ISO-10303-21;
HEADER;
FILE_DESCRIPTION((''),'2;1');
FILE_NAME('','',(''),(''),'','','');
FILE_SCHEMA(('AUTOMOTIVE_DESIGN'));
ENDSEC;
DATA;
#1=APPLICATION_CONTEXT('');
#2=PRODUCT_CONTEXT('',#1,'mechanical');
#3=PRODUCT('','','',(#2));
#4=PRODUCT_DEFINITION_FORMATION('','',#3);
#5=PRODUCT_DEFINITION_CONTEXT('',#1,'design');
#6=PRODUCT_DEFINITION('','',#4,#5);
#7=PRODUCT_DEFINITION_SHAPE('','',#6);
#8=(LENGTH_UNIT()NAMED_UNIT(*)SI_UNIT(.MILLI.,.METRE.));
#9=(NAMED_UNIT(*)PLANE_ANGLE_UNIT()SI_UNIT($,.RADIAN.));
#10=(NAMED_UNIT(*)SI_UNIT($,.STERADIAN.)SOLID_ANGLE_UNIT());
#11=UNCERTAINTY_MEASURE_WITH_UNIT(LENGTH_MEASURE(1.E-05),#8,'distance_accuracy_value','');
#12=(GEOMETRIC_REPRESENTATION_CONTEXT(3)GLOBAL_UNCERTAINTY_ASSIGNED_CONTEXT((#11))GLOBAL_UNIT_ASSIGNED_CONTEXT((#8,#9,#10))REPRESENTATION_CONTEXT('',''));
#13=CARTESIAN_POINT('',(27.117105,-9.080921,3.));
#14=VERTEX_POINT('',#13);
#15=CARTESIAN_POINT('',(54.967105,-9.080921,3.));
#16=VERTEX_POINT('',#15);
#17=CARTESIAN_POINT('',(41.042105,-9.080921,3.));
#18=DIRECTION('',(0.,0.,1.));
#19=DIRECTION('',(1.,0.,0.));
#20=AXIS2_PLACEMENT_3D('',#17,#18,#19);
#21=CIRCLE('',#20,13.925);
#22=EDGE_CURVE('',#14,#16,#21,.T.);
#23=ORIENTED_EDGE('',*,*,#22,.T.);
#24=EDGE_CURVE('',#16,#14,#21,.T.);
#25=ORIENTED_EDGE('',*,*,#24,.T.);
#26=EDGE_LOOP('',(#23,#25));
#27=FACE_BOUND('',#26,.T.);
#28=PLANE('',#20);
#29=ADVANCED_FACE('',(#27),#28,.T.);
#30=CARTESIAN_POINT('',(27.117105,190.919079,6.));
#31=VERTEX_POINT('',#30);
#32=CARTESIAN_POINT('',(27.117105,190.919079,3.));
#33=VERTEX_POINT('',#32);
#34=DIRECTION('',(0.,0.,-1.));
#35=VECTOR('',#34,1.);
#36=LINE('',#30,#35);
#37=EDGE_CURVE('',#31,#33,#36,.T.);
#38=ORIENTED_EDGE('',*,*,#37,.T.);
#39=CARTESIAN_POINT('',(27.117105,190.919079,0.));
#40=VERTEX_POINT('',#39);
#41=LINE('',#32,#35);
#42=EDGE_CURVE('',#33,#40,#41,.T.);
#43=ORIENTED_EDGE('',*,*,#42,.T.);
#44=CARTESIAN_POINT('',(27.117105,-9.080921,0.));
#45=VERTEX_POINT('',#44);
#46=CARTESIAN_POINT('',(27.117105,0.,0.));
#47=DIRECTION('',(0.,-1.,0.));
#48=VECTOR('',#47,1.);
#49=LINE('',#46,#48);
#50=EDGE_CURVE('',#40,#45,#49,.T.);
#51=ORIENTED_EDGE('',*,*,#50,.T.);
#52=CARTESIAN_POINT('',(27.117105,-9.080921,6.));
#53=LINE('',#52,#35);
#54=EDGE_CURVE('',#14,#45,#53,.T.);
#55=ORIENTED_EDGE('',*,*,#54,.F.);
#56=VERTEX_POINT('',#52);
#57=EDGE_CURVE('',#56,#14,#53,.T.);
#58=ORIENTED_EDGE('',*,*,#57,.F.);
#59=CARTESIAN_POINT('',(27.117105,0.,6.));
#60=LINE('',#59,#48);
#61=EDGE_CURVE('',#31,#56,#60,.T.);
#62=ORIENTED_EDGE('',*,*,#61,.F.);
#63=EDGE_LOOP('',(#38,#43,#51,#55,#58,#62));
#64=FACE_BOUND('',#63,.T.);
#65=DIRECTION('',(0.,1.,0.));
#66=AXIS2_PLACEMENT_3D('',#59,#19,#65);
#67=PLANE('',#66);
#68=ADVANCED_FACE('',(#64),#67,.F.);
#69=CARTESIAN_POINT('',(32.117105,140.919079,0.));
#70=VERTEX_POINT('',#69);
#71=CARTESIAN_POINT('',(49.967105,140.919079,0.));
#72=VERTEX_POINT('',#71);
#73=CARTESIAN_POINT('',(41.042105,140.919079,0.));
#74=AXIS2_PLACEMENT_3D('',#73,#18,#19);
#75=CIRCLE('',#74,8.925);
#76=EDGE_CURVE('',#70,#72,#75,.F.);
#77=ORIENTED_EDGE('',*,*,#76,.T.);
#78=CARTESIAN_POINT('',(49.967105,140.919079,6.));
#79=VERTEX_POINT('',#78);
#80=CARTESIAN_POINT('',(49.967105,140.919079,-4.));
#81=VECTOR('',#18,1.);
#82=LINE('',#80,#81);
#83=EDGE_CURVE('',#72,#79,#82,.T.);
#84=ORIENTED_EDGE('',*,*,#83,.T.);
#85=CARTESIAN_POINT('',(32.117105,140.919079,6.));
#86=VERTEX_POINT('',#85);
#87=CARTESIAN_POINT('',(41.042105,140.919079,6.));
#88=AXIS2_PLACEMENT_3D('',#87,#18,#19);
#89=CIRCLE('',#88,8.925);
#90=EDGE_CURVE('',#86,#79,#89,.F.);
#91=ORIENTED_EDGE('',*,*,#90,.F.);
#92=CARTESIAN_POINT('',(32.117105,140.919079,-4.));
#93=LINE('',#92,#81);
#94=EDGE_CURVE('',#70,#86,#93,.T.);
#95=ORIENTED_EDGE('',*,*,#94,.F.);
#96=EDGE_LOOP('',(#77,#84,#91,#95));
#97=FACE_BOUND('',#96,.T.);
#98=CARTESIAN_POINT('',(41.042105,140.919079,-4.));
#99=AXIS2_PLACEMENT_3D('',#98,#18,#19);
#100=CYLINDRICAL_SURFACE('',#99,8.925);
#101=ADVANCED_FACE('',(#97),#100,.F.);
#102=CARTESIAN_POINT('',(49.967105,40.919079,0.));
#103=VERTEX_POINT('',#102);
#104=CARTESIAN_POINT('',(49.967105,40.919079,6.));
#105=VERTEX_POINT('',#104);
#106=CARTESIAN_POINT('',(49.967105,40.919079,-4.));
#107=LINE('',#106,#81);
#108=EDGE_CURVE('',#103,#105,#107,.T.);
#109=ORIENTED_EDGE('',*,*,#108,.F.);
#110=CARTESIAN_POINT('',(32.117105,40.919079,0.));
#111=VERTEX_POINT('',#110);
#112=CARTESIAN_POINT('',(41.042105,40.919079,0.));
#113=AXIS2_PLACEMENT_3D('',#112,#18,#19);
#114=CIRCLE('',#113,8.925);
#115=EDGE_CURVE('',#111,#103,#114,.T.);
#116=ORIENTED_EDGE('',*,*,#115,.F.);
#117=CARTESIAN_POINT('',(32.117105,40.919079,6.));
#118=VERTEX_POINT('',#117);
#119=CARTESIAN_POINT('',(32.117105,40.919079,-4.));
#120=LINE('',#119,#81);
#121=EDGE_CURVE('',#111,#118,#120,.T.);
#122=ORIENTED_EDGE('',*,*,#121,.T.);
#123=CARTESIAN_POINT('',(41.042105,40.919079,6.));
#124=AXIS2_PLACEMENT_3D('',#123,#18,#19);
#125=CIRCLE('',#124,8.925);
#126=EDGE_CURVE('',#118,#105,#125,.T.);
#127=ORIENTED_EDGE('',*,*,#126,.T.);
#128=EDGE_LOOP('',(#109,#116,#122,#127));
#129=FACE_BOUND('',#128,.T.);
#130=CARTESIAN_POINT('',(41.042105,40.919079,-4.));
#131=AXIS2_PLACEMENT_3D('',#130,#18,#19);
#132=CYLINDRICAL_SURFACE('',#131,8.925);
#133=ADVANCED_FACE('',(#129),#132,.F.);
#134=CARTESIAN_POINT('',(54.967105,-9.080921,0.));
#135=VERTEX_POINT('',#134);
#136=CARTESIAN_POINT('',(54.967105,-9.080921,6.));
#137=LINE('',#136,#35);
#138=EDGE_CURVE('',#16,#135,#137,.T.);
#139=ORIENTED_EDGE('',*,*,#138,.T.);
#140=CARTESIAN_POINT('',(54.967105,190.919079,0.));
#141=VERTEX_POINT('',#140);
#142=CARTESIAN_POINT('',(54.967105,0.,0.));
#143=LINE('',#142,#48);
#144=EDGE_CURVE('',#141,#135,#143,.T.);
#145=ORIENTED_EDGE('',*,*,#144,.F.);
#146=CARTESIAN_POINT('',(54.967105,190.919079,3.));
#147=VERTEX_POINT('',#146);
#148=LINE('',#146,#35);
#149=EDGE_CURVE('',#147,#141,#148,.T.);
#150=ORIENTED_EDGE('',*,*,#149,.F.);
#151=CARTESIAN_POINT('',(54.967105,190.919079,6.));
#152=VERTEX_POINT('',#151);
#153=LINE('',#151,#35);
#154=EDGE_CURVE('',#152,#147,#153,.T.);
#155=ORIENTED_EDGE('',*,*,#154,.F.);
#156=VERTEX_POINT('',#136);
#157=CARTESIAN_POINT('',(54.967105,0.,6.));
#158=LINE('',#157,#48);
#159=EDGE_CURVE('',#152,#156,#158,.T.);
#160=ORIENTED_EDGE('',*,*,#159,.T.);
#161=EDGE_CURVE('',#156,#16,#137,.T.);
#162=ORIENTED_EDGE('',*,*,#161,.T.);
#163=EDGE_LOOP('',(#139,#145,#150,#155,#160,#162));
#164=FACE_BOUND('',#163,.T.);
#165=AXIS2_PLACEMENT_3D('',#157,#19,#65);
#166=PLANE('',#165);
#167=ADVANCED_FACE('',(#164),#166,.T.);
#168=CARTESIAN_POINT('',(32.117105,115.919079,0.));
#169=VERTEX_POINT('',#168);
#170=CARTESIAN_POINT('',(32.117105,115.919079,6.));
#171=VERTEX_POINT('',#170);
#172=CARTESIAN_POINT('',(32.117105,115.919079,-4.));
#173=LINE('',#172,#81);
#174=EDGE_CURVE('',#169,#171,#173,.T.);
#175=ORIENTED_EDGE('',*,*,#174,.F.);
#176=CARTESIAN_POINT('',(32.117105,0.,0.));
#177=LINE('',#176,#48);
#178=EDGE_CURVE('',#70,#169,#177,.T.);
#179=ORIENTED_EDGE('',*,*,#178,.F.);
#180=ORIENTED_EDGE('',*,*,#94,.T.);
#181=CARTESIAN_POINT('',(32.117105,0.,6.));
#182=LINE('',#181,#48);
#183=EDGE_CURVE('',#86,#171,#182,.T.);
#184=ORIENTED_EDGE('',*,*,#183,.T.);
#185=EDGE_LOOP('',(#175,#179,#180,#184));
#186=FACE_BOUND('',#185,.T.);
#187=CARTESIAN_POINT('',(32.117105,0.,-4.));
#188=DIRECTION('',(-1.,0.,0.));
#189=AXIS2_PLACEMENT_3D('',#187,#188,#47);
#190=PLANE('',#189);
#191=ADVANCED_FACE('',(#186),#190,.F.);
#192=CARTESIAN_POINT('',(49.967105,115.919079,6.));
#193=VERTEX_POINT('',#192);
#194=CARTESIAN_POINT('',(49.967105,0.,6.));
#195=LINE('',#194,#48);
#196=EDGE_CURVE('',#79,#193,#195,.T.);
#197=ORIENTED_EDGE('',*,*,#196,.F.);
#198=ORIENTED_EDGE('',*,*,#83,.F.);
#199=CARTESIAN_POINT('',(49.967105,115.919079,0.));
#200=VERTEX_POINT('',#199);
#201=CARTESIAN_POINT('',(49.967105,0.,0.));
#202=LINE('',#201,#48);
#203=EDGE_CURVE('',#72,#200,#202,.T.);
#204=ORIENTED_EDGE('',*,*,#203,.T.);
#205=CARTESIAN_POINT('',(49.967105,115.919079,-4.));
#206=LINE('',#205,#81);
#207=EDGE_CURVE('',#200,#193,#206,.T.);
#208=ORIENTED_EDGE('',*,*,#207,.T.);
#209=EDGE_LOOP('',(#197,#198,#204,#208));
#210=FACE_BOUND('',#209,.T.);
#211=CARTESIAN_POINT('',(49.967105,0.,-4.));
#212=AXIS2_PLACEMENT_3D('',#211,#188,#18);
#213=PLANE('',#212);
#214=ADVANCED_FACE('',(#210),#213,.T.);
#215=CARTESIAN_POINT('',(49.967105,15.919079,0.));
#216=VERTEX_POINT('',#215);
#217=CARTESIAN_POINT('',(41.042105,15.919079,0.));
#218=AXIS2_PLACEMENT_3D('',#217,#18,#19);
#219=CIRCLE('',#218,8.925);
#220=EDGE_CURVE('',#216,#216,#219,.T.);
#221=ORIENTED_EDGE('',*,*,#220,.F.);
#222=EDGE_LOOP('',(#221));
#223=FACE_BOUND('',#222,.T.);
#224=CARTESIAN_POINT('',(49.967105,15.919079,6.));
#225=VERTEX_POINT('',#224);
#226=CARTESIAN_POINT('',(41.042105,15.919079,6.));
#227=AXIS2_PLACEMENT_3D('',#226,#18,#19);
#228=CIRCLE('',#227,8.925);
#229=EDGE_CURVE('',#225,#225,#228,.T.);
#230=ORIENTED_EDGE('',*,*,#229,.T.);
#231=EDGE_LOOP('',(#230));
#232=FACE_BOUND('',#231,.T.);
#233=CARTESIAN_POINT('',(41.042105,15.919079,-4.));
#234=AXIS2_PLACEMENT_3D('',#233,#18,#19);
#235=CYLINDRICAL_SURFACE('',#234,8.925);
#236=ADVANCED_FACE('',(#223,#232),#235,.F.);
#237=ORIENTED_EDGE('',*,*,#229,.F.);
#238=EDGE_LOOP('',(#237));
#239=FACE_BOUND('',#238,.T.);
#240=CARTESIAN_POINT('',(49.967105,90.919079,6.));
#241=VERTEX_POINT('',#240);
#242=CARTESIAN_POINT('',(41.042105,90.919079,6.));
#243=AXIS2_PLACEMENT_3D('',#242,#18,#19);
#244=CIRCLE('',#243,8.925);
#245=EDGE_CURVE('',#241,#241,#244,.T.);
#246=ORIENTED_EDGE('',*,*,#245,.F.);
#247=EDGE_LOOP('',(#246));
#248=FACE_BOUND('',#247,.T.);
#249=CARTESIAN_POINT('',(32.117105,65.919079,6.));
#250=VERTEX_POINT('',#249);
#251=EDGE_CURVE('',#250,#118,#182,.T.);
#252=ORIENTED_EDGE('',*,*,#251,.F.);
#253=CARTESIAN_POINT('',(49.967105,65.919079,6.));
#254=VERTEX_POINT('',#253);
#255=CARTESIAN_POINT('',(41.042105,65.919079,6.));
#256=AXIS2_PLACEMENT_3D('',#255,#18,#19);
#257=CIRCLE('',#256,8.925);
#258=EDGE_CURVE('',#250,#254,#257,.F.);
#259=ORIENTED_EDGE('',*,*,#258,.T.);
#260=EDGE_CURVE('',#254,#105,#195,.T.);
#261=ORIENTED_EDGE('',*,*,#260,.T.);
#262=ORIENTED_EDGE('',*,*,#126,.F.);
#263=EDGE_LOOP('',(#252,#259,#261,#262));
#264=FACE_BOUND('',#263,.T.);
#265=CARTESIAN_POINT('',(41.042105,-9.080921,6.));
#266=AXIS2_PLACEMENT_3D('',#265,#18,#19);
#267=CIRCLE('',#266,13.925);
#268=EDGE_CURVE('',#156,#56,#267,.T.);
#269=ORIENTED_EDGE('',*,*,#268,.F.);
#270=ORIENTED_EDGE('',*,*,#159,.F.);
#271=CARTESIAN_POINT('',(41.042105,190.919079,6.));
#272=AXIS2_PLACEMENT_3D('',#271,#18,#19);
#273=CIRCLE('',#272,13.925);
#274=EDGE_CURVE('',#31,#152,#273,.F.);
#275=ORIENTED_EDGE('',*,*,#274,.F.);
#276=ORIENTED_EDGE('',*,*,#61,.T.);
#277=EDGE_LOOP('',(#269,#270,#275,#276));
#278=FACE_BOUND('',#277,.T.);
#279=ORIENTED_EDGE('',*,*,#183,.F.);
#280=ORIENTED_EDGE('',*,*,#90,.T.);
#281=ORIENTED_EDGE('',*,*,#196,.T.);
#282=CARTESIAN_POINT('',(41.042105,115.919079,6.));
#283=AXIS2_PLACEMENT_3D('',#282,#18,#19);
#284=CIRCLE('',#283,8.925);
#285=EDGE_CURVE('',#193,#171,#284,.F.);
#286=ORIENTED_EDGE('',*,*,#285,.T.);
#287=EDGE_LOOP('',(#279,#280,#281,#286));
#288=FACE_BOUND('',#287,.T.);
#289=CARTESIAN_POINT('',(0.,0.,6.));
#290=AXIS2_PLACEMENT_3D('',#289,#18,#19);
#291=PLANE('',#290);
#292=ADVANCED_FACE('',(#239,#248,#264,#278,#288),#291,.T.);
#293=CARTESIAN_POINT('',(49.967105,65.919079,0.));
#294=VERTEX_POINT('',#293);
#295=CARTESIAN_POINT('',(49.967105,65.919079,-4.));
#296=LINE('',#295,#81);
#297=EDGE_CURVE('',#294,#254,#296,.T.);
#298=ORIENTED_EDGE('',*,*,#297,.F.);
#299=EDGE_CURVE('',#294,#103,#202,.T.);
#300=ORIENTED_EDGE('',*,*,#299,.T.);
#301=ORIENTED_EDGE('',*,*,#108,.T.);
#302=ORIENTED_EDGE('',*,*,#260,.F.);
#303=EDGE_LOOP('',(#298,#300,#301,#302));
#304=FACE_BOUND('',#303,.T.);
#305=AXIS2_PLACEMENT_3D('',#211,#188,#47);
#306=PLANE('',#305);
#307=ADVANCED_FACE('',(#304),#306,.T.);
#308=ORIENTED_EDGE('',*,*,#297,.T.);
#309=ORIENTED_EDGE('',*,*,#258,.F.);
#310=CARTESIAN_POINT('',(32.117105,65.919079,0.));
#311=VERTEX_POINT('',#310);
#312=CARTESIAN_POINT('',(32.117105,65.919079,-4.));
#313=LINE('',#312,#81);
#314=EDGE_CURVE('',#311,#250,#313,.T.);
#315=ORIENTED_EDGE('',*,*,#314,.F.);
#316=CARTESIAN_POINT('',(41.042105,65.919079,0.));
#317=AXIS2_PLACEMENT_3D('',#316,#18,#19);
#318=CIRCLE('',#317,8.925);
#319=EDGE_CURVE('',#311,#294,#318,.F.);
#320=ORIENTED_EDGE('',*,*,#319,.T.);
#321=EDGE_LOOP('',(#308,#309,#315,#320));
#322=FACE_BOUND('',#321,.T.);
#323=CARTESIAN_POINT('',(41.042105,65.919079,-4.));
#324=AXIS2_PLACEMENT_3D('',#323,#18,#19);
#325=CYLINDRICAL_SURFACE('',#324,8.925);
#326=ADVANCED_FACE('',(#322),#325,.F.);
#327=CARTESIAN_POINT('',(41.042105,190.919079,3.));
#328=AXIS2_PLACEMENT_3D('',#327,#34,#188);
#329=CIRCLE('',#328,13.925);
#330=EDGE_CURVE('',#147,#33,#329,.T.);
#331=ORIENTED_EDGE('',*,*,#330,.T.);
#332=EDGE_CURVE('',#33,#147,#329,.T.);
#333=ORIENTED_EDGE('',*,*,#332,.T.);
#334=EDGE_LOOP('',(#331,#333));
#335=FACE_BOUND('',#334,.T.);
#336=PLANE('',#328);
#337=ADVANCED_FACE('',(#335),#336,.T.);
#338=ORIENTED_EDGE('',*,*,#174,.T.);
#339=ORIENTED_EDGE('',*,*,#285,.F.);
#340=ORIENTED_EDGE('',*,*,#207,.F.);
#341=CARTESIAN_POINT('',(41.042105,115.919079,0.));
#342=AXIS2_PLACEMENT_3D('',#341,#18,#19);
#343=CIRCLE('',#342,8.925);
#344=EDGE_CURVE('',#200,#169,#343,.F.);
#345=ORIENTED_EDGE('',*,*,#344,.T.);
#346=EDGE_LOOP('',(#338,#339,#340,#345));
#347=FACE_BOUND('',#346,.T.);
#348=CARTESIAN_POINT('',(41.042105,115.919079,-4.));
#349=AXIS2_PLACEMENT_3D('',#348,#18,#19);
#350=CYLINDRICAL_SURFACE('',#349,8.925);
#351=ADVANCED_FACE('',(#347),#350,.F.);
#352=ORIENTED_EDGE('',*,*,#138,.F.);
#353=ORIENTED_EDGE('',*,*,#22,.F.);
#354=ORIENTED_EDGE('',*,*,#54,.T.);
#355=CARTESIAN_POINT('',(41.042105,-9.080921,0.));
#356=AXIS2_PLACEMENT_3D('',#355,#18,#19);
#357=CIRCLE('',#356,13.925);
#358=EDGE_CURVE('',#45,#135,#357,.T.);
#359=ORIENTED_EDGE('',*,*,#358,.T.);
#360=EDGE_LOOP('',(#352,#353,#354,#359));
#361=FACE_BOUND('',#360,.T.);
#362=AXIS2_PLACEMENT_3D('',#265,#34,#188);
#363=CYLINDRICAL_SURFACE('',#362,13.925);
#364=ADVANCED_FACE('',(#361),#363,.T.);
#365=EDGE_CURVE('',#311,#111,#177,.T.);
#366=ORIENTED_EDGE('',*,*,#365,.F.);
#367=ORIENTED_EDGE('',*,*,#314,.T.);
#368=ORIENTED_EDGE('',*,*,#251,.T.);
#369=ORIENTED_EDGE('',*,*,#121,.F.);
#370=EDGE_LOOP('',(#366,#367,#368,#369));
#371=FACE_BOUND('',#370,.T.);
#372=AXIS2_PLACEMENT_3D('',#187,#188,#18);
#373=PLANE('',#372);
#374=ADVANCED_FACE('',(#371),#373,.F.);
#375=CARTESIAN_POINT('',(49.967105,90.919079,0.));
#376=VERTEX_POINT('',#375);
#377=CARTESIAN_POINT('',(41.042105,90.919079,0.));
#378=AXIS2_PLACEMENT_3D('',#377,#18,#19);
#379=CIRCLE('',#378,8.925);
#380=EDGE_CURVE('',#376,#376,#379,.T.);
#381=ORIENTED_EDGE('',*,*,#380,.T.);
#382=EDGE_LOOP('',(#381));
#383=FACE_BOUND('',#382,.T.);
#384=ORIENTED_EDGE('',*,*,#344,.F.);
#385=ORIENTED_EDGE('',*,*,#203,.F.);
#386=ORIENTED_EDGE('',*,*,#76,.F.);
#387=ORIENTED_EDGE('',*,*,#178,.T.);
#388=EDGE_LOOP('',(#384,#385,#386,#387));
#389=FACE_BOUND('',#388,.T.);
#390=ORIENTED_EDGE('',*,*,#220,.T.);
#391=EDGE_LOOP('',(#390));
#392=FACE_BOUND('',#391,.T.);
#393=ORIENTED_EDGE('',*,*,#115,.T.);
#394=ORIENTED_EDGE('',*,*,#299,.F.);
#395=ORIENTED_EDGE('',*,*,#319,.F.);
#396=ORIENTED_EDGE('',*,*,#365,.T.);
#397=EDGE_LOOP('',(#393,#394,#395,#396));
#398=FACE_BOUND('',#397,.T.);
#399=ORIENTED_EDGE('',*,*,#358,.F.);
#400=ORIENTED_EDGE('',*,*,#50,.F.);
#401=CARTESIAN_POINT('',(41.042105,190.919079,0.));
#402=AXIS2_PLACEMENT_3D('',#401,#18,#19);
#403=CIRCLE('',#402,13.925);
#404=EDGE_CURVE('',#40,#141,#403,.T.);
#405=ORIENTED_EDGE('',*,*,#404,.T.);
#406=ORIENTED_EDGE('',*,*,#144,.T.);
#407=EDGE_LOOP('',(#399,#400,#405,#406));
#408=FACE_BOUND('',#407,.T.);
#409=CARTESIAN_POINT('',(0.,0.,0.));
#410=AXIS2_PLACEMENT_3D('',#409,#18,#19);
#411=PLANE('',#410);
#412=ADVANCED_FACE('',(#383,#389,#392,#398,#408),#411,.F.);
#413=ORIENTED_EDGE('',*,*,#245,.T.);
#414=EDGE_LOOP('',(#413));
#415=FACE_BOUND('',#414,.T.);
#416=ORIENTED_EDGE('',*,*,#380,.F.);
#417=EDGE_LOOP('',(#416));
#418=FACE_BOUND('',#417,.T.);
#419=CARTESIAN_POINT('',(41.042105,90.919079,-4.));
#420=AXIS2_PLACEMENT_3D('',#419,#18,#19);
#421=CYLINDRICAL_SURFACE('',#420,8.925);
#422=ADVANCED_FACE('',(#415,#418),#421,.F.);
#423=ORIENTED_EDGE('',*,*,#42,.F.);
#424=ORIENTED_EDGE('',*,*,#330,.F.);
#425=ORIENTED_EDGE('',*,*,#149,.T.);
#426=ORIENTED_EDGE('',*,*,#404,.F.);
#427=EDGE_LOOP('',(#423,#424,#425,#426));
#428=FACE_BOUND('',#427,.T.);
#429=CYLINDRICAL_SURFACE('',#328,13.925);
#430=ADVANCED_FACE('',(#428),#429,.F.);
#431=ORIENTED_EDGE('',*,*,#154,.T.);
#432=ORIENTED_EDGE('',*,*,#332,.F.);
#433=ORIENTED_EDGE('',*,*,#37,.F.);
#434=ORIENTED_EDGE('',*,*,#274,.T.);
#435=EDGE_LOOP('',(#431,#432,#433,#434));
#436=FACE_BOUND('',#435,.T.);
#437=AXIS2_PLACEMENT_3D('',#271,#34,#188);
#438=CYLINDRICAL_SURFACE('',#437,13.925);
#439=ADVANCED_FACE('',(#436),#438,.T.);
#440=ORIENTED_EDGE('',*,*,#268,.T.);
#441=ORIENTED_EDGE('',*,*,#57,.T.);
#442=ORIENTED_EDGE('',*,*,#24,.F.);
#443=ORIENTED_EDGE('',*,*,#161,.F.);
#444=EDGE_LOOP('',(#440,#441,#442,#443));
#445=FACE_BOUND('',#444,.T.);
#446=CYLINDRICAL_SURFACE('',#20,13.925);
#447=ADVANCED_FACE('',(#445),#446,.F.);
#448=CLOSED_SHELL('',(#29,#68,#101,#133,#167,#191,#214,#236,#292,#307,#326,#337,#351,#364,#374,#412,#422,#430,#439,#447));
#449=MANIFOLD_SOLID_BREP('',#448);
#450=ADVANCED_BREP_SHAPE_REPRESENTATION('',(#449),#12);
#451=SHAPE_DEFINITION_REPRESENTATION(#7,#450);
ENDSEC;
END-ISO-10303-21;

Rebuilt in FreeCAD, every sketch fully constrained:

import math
import FreeCAD as App
import Part
import Sketcher
from FreeCAD import Vector

doc = App.newDocument("Part")
body = doc.addObject("PartDesign::Body", "Body")

sketch1 = body.newObject("Sketcher::SketchObject", "Sketch")
sketch1.AttachmentSupport = (doc.getObject("XY_Plane"), [""])
sketch1.MapMode = "FlatFace"
sketch1.addGeometry([
    Part.LineSegment(Vector(27, 191, 0), Vector(27, -9, 0)),
    Part.ArcOfCircle(Part.Circle(Vector(41, -9, 0), Vector(0, 0, 1), 14), math.radians(180), math.radians(360)),
    Part.LineSegment(Vector(55, -9, 0), Vector(55, 191, 0)),
    Part.ArcOfCircle(Part.Circle(Vector(41, 191, 0), Vector(0, 0, 1), 14), math.radians(0), math.radians(180)),
], False)
sketch1.addConstraint([
    Sketcher.Constraint("Tangent", 0, 2, 1, 1),
    Sketcher.Constraint("Tangent", 1, 2, 2, 1),
    Sketcher.Constraint("Tangent", 2, 2, 3, 1),
    Sketcher.Constraint("Tangent", 3, 2, 0, 1),
    Sketcher.Constraint("Vertical", 0),
    Sketcher.Constraint("Vertical", 2),
    Sketcher.Constraint("DistanceY", 0, 2, 0, 1, 200.0),
    Sketcher.Constraint("Radius", 1, 13.925),
    Sketcher.Constraint("DistanceY", 1, 3, -1, 1, 9.080921),
    Sketcher.Constraint("DistanceX", -1, 1, 1, 3, 41.042105),
])
pad1 = body.newObject("PartDesign::Pad", "Pad")
pad1.Profile = sketch1
pad1.Length = 6

sketch2 = body.newObject("Sketcher::SketchObject", "Sketch001")
sketch2.AttachmentSupport = (doc.getObject("XY_Plane"), [""])
sketch2.MapMode = "FlatFace"
sketch2.AttachmentOffset = App.Placement(Vector(0, 0, 6), App.Rotation())
sketch2.addGeometry(Part.Circle(Vector(41, -9, 0), Vector(0, 0, 1), 14), False)
sketch2.addConstraint([
    Sketcher.Constraint("Diameter", 0, 27.85),
    Sketcher.Constraint("DistanceY", 0, 3, -1, 1, 9.080921),
    Sketcher.Constraint("DistanceX", -1, 1, 0, 3, 41.042105),
])
pocket1 = body.newObject("PartDesign::Pocket", "Pocket")
pocket1.Profile = sketch2
pocket1.Length = 3

sketch3 = body.newObject("Sketcher::SketchObject", "Sketch002")
sketch3.AttachmentSupport = (doc.getObject("XY_Plane"), [""])
sketch3.MapMode = "FlatFace"
sketch3.addGeometry(Part.Circle(Vector(41, 191, 0), Vector(0, 0, 1), 14), False)
sketch3.addConstraint([
    Sketcher.Constraint("Diameter", 0, 27.85),
    Sketcher.Constraint("DistanceY", -1, 1, 0, 3, 190.919079),
    Sketcher.Constraint("DistanceX", -1, 1, 0, 3, 41.042105),
])
pocket2 = body.newObject("PartDesign::Pocket", "Pocket001")
pocket2.Profile = sketch3
pocket2.Length = 3
pocket2.Reversed = True

sketch4 = body.newObject("Sketcher::SketchObject", "Sketch003")
sketch4.AttachmentSupport = (doc.getObject("XY_Plane"), [""])
sketch4.MapMode = "FlatFace"
sketch4.AttachmentOffset = App.Placement(Vector(0, 0, 6), App.Rotation())
sketch4.addGeometry([
    Part.ArcOfCircle(Part.Circle(Vector(41, 141, 0), Vector(0, 0, 1), 9), math.radians(0), math.radians(180)),
    Part.LineSegment(Vector(32, 141, 0), Vector(32, 116, 0)),
    Part.ArcOfCircle(Part.Circle(Vector(41, 116, 0), Vector(0, 0, 1), 9), math.radians(180), math.radians(360)),
    Part.LineSegment(Vector(50, 116, 0), Vector(50, 141, 0)),
    Part.Circle(Vector(41, 91, 0), Vector(0, 0, 1), 9),
    Part.ArcOfCircle(Part.Circle(Vector(41, 66, 0), Vector(0, 0, 1), 9), math.radians(0), math.radians(180)),
    Part.LineSegment(Vector(32, 66, 0), Vector(32, 41, 0)),
    Part.ArcOfCircle(Part.Circle(Vector(41, 41, 0), Vector(0, 0, 1), 9), math.radians(180), math.radians(360)),
    Part.LineSegment(Vector(50, 41, 0), Vector(50, 66, 0)),
    Part.Circle(Vector(41, 16, 0), Vector(0, 0, 1), 9),
], False)
sketch4.addConstraint([
    Sketcher.Constraint("Tangent", 0, 2, 1, 1),
    Sketcher.Constraint("Tangent", 1, 2, 2, 1),
    Sketcher.Constraint("Tangent", 2, 2, 3, 1),
    Sketcher.Constraint("Tangent", 3, 2, 0, 1),
    Sketcher.Constraint("Tangent", 5, 2, 6, 1),
    Sketcher.Constraint("Tangent", 6, 2, 7, 1),
    Sketcher.Constraint("Tangent", 7, 2, 8, 1),
    Sketcher.Constraint("Tangent", 8, 2, 5, 1),
    Sketcher.Constraint("Vertical", 1),
    Sketcher.Constraint("Vertical", 3),
    Sketcher.Constraint("Vertical", 6),
    Sketcher.Constraint("Vertical", 8),
    Sketcher.Constraint("Equal", 2, 4),
    Sketcher.Constraint("Equal", 4, 5),
    Sketcher.Constraint("Equal", 7, 9),
    Sketcher.Constraint("Vertical", 2, 3, 4, 3),
    Sketcher.Constraint("Vertical", 4, 3, 5, 3),
    Sketcher.Constraint("Vertical", 7, 3, 9, 3),
    Sketcher.Constraint("Equal", 3, 6),
    Sketcher.Constraint("Diameter", 4, 17.85),
    Sketcher.Constraint("DistanceY", 1, 2, 1, 1, 25.0),
    Sketcher.Constraint("DistanceY", 4, 3, 2, 3, 25.0),
    Sketcher.Constraint("DistanceY", 5, 3, 4, 3, 25.0),
    Sketcher.Constraint("DistanceY", 9, 3, 7, 3, 25.0),
    Sketcher.Constraint("DistanceY", -1, 1, 0, 3, 140.919079),
    Sketcher.Constraint("DistanceX", -1, 1, 0, 3, 41.042105),
])
pocket3 = body.newObject("PartDesign::Pocket", "Pocket002")
pocket3.Profile = sketch4
pocket3.Length = 10

doc.recompute()
